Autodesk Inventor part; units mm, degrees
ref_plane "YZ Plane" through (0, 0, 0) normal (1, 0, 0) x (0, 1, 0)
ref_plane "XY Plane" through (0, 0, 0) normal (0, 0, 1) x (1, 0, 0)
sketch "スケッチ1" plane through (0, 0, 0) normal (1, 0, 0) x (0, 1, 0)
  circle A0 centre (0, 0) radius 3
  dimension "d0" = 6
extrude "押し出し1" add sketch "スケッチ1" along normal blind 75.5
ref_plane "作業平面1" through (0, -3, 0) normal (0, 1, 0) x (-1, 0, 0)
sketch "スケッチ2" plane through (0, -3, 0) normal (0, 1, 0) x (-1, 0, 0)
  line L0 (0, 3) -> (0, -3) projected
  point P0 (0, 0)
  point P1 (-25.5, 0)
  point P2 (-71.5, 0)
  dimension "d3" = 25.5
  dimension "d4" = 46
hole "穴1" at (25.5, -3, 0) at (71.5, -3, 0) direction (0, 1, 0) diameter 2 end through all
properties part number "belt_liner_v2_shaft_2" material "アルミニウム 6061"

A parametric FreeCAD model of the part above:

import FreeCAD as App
import Part
import Sketcher
from FreeCAD import Vector

doc = App.newDocument("Part")
body = doc.addObject("PartDesign::Body", "Body")

# Sketch on YZ plane
sketch1 = body.newObject("Sketcher::SketchObject", "Sketch")
sketch1.AttachmentSupport = (doc.getObject("YZ_Plane"), [""])
sketch1.MapMode = "FlatFace"
sketch1.addGeometry(Part.Circle(Vector(0, 0, 0), Vector(0, 0, 1), 3), False)
sketch1.addConstraint(Sketcher.Constraint("Coincident", 0, 3, -1, 1))
sketch1.addConstraint(Sketcher.Constraint("Diameter", 0, 6.0))
pad1 = body.newObject("PartDesign::Pad", "Pad")
pad1.Profile = sketch1
pad1.Length = 75.5

# Sketch on XZ plane
sketch2 = body.newObject("Sketcher::SketchObject", "Sketch001")
sketch2.AttachmentSupport = (doc.getObject("XZ_Plane"), [""])
sketch2.MapMode = "FlatFace"
sketch2.AttachmentOffset = App.Placement(Vector(0, 0, 3), App.Rotation())
sketch2.addGeometry(Part.Circle(Vector(25.5, 0, 0), Vector(0, 0, 1), 1), False)
sketch2.addGeometry(Part.Circle(Vector(71.5, 0, 0), Vector(0, 0, 1), 1), False)
sketch2.addConstraint(Sketcher.Constraint("Equal", 0, 1))
sketch2.addConstraint(Sketcher.Constraint("PointOnObject", 0, 3, -1))
sketch2.addConstraint(Sketcher.Constraint("PointOnObject", 1, 3, -1))
sketch2.addConstraint(Sketcher.Constraint("Diameter", 0, 2.0))
sketch2.addConstraint(Sketcher.Constraint("DistanceX", 0, 3, 1, 3, 46.0))
sketch2.addConstraint(Sketcher.Constraint("DistanceX", -1, 1, 0, 3, 25.5))
doc.recompute()
hole = body.newObject("PartDesign::Hole", "Hole")
hole.Profile = sketch2
hole.ThreadType = "None"
hole.Diameter = 2
hole.DepthType = "ThroughAll"

doc.recompute()
